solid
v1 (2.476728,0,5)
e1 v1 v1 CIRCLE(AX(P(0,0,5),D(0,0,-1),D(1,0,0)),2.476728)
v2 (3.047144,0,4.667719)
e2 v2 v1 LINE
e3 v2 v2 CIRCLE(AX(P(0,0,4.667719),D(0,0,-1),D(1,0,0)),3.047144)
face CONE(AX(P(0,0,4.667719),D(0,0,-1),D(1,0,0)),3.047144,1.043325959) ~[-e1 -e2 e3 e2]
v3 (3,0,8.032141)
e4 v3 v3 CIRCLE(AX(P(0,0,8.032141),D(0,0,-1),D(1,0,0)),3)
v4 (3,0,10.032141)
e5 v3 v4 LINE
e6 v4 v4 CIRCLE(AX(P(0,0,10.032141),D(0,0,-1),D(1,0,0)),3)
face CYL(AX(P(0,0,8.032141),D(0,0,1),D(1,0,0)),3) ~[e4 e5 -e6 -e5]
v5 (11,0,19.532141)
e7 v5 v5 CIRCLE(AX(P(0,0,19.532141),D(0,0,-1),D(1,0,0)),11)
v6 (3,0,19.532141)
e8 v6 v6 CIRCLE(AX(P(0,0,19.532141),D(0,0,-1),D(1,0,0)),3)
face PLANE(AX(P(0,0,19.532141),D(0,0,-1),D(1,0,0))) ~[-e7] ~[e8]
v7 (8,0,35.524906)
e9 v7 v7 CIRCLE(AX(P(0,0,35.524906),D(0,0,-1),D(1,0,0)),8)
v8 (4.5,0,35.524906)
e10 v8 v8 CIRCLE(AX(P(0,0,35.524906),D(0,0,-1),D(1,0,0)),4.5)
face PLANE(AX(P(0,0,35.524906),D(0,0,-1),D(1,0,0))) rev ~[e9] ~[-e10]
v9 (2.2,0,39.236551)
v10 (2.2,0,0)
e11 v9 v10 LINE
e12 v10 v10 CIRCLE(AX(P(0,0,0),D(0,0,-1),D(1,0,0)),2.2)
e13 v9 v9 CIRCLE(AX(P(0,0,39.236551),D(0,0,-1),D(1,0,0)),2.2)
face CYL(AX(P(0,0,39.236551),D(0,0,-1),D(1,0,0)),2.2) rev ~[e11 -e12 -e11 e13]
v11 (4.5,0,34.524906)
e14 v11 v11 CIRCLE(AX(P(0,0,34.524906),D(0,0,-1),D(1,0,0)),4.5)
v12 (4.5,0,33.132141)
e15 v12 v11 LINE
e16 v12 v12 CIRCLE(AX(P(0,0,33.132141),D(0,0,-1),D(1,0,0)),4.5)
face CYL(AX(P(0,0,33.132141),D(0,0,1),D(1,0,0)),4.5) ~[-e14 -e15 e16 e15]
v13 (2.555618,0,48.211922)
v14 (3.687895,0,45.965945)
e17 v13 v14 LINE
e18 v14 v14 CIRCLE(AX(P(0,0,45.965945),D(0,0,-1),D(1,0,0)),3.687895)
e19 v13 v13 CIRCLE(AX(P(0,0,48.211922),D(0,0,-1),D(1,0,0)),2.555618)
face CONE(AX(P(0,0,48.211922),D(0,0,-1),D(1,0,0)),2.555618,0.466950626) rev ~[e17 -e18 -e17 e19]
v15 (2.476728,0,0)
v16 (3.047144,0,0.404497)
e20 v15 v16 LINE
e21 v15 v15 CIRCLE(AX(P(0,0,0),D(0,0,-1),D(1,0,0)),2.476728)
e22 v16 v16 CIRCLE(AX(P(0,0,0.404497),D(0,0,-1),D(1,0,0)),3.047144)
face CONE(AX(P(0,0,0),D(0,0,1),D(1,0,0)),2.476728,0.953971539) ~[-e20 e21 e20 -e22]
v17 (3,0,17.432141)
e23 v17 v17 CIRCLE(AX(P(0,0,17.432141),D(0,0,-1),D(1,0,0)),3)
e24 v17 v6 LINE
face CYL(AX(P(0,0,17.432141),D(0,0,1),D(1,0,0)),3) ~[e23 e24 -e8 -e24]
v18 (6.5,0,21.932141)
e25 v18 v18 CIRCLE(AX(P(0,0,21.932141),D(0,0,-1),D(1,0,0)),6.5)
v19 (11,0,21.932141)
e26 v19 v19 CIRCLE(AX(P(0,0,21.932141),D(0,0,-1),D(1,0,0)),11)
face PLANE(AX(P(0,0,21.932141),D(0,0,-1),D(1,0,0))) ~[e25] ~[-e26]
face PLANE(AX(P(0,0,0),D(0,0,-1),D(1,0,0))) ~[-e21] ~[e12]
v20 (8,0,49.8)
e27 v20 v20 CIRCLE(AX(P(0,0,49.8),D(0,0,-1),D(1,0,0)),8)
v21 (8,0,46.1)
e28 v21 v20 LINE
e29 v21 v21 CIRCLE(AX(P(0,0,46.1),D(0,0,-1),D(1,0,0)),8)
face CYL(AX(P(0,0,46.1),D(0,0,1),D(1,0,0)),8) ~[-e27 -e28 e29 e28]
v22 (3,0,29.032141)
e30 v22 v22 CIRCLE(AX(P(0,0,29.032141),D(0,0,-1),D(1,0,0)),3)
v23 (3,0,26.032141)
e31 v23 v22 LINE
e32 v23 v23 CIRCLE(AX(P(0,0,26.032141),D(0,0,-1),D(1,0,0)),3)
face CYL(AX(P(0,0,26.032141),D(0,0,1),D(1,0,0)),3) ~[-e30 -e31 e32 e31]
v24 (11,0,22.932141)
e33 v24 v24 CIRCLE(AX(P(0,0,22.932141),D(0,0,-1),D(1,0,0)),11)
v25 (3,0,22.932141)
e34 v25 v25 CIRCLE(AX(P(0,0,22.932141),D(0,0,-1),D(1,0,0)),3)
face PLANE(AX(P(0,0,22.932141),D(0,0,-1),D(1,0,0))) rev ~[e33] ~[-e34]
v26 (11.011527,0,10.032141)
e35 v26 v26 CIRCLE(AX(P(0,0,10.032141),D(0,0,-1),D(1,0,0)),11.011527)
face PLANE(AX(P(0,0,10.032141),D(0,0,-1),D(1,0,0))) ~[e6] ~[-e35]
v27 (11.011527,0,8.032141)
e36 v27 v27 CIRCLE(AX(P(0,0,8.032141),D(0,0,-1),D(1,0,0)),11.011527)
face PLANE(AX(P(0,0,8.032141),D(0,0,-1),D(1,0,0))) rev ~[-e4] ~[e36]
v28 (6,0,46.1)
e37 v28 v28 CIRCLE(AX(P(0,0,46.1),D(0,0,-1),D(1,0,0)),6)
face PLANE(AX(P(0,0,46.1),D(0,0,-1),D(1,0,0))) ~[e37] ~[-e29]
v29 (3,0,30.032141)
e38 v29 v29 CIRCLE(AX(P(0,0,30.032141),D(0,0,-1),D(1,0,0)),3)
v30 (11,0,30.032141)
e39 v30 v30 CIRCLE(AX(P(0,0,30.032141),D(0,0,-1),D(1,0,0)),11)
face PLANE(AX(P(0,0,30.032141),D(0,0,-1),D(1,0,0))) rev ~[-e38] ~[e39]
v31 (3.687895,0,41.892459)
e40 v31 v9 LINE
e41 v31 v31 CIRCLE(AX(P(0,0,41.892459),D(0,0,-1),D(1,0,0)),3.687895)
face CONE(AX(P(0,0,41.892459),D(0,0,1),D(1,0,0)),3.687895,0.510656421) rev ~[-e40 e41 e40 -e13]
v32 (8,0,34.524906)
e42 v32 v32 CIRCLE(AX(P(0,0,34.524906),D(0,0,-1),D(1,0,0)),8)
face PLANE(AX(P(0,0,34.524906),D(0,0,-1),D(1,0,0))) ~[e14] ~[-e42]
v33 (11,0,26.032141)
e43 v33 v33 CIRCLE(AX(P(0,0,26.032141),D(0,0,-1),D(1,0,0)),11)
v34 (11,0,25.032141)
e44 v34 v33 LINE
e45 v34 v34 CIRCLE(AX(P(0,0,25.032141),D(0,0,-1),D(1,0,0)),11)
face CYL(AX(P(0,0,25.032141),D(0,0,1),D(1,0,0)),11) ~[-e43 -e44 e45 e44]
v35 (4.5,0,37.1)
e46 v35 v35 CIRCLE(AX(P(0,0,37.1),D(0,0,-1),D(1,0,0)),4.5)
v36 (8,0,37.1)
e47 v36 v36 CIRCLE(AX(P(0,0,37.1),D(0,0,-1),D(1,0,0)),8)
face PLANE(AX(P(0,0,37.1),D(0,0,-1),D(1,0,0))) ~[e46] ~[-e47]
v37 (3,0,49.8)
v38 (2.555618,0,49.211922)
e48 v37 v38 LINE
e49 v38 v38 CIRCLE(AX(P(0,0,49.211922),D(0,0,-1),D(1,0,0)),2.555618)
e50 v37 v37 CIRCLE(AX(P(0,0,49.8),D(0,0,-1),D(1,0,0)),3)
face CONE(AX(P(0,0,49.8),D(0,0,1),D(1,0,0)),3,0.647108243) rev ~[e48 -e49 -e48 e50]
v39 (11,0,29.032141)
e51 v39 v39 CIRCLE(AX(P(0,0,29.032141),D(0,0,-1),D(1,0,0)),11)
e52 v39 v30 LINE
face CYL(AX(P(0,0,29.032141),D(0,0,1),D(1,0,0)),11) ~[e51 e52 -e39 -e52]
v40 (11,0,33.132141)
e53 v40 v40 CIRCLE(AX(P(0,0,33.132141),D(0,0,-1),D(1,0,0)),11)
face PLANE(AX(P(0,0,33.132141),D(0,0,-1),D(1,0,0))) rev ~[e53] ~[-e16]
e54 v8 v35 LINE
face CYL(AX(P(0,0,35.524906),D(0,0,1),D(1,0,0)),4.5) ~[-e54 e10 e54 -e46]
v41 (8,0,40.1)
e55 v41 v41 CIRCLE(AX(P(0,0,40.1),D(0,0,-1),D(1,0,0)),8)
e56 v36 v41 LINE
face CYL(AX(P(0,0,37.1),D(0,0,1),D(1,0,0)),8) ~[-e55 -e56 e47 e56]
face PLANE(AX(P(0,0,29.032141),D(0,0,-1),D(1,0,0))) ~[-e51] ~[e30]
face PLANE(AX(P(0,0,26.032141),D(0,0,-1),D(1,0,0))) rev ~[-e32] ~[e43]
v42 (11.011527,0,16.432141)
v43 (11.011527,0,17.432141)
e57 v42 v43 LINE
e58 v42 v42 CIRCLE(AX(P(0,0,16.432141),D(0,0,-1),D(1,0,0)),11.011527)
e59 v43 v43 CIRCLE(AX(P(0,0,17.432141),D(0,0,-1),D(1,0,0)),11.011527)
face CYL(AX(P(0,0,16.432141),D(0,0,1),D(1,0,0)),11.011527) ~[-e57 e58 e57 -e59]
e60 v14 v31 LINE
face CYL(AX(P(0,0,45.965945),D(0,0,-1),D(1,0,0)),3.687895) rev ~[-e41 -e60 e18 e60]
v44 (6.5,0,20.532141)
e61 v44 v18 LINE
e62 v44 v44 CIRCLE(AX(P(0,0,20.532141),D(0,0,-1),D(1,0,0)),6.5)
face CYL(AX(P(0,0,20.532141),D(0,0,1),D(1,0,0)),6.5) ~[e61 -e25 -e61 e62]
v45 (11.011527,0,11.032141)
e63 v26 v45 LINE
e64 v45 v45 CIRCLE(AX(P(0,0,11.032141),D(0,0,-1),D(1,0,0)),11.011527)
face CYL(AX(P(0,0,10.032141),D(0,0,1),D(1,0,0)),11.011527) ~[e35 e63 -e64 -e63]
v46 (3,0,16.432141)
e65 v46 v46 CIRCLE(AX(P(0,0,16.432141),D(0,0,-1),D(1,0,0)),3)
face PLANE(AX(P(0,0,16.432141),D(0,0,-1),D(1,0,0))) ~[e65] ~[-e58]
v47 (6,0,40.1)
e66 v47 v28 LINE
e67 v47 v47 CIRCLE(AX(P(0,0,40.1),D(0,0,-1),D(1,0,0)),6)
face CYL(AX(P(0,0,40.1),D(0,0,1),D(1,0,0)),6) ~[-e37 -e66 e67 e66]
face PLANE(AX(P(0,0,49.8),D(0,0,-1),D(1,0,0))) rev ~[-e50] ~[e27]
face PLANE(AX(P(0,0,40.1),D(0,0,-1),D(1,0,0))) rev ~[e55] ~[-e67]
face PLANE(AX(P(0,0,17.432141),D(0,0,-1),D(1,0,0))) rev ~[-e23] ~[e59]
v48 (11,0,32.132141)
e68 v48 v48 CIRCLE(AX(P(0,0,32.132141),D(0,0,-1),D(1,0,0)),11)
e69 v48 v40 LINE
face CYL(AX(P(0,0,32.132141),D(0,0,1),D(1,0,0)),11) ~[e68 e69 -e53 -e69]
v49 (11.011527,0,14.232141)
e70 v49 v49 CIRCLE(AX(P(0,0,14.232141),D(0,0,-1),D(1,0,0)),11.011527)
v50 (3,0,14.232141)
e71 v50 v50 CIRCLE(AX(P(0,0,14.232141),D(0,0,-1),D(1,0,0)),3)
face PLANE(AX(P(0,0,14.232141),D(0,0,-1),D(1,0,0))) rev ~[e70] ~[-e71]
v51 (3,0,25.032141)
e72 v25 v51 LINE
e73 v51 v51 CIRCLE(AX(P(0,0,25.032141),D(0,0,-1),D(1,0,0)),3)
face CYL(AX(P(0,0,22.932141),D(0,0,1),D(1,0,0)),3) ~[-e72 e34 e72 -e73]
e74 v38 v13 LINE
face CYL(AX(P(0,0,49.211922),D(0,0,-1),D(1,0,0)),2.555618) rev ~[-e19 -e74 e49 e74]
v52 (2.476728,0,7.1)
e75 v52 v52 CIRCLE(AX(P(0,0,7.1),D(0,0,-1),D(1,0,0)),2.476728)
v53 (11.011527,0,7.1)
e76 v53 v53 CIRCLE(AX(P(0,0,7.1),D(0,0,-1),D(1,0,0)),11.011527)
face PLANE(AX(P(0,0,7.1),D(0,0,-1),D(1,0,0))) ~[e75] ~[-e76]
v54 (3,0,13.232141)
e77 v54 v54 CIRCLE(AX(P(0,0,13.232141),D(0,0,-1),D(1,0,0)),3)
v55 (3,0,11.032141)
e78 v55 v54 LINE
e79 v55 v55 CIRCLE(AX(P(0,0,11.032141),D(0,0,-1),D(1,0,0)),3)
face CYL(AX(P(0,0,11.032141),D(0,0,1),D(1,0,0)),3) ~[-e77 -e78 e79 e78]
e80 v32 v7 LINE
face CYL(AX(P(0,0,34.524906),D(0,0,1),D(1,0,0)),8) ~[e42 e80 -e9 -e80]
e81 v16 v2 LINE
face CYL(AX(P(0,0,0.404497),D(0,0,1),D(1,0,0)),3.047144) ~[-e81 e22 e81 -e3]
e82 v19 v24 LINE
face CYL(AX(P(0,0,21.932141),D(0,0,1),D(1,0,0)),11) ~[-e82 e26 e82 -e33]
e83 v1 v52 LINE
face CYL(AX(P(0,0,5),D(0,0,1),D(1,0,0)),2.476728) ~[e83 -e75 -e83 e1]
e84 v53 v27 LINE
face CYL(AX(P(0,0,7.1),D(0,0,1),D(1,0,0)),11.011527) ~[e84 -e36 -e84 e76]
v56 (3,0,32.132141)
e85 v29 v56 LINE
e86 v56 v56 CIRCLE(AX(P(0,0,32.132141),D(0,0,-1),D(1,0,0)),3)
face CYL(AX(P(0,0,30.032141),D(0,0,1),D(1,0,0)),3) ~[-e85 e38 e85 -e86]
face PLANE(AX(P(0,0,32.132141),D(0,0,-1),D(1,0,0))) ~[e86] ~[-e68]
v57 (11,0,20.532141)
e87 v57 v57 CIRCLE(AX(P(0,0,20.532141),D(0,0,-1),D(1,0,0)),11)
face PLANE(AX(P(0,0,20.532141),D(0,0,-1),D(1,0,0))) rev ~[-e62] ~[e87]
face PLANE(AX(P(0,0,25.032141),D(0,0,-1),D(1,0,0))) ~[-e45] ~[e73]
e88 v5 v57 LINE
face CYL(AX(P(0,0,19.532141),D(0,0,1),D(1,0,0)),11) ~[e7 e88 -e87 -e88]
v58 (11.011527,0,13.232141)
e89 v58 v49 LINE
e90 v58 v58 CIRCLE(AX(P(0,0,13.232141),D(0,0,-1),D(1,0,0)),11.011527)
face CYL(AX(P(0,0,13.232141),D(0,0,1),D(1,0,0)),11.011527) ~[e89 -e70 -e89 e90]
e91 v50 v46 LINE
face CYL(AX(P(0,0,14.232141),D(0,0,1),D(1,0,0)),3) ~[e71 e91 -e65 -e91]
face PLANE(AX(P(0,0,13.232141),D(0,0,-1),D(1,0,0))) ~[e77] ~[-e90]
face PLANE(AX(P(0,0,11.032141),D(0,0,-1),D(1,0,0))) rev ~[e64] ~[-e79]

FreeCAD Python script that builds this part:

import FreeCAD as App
import Part
import Sketcher

V = App.Vector
Q = App.Units.Quantity


def add_polygon(sketch, points):
    """Adds a closed chain of lines whose ends are joined by coincident constraints."""
    first, n = sketch.GeometryCount, len(points)
    for a, b in zip(points, points[1:] + points[:1]):
        sketch.addGeometry(Part.LineSegment(App.Vector(*a, 0), App.Vector(*b, 0)), False)
    for i in range(n):
        sketch.addConstraint(Sketcher.Constraint("Coincident", first + i, 2, first + (i + 1) % n, 1))

doc = App.newDocument("Part")
body = doc.addObject("PartDesign::Body", "Body")

sketch1 = body.newObject("Sketcher::SketchObject", "Sketch")
sketch1.AttachmentSupport = (doc.getObject("XZ_Plane"), [""])
sketch1.MapMode = "FlatFace"
add_polygon(sketch1, [(8, 49.8), (3, 49.8), (2.56, 49.21), (2.56, 48.21), (3.69, 45.97), (3.69, 41.89), (2.2, 39.24), (2.2, 0), (2.48, 0), (3.05, 0.4), (3.05, 4.67), (2.48, 5), (2.48, 7.1), (11.01, 7.1), (11.01, 8.03), (3, 8.03), (3, 10.03), (11.01, 10.03), (11.01, 11.03), (3, 11.03), (3, 13.23), (11.01, 13.23), (11.01, 14.23), (3, 14.23), (3, 16.43), (11.01, 16.43), (11.01, 17.43), (3, 17.43), (3, 19.53), (11, 19.53), (11, 20.53), (6.5, 20.53), (6.5, 21.93), (11, 21.93), (11, 22.93), (3, 22.93), (3, 25.03), (11, 25.03), (11, 26.03), (3, 26.03), (3, 29.03), (11, 29.03), (11, 30.03), (3, 30.03), (3, 32.13), (11, 32.13), (11, 33.13), (4.5, 33.13), (4.5, 34.52), (8, 34.52), (8, 35.52), (4.5, 35.52), (4.5, 37.1), (8, 37.1), (8, 40.1), (6, 40.1), (6, 46.1), (8, 46.1)])
sketch1.addConstraint([
    Sketcher.Constraint("Horizontal", 0),
    Sketcher.Constraint("Vertical", 2),
    Sketcher.Constraint("Vertical", 4),
    Sketcher.Constraint("Vertical", 6),
    Sketcher.Constraint("Horizontal", 7),
    Sketcher.Constraint("Vertical", 9),
    Sketcher.Constraint("Vertical", 11),
    Sketcher.Constraint("Horizontal", 12),
    Sketcher.Constraint("Vertical", 13),
    Sketcher.Constraint("Horizontal", 14),
    Sketcher.Constraint("Vertical", 15),
    Sketcher.Constraint("Horizontal", 16),
    Sketcher.Constraint("Vertical", 17),
    Sketcher.Constraint("Horizontal", 18),
    Sketcher.Constraint("Vertical", 19),
    Sketcher.Constraint("Horizontal", 20),
    Sketcher.Constraint("Vertical", 21),
    Sketcher.Constraint("Horizontal", 22),
    Sketcher.Constraint("Vertical", 23),
    Sketcher.Constraint("Horizontal", 24),
    Sketcher.Constraint("Vertical", 25),
    Sketcher.Constraint("Horizontal", 26),
    Sketcher.Constraint("Vertical", 27),
    Sketcher.Constraint("Horizontal", 28),
    Sketcher.Constraint("Vertical", 29),
    Sketcher.Constraint("Horizontal", 30),
    Sketcher.Constraint("Vertical", 31),
    Sketcher.Constraint("Horizontal", 32),
    Sketcher.Constraint("Vertical", 33),
    Sketcher.Constraint("Horizontal", 34),
    Sketcher.Constraint("Vertical", 35),
    Sketcher.Constraint("Horizontal", 36),
    Sketcher.Constraint("Vertical", 37),
    Sketcher.Constraint("Horizontal", 38),
    Sketcher.Constraint("Vertical", 39),
    Sketcher.Constraint("Horizontal", 40),
    Sketcher.Constraint("Vertical", 41),
    Sketcher.Constraint("Horizontal", 42),
    Sketcher.Constraint("Vertical", 43),
    Sketcher.Constraint("Horizontal", 44),
    Sketcher.Constraint("Vertical", 45),
    Sketcher.Constraint("Horizontal", 46),
    Sketcher.Constraint("Vertical", 47),
    Sketcher.Constraint("Horizontal", 48),
    Sketcher.Constraint("Vertical", 49),
    Sketcher.Constraint("Horizontal", 50),
    Sketcher.Constraint("Vertical", 51),
    Sketcher.Constraint("Horizontal", 52),
    Sketcher.Constraint("Vertical", 53),
    Sketcher.Constraint("Horizontal", 54),
    Sketcher.Constraint("Vertical", 55),
    Sketcher.Constraint("Horizontal", 56),
    Sketcher.Constraint("Vertical", 57),
    Sketcher.Constraint("PointOnObject", 6, 2, -1),
    Sketcher.Constraint("Vertical", 7, 2, 10, 2),
    Sketcher.Constraint("Vertical", 0, 2, 14, 2),
    Sketcher.Constraint("Vertical", 13, 2, 16, 2),
    Sketcher.Constraint("Vertical", 15, 2, 18, 2),
    Sketcher.Constraint("Vertical", 17, 2, 20, 2),
    Sketcher.Constraint("Vertical", 19, 2, 22, 2),
    Sketcher.Constraint("Vertical", 21, 2, 24, 2),
    Sketcher.Constraint("Vertical", 23, 2, 26, 2),
    Sketcher.Constraint("Vertical", 29, 2, 32, 2),
    Sketcher.Constraint("Vertical", 27, 2, 34, 2),
    Sketcher.Constraint("Vertical", 33, 2, 36, 2),
    Sketcher.Constraint("Vertical", 35, 2, 38, 2),
    Sketcher.Constraint("Vertical", 37, 2, 40, 2),
    Sketcher.Constraint("Vertical", 39, 2, 42, 2),
    Sketcher.Constraint("Vertical", 41, 2, 44, 2),
    Sketcher.Constraint("Vertical", 47, 2, 50, 2),
    Sketcher.Constraint("Vertical", 49, 2, 52, 2),
    Sketcher.Constraint("Vertical", 53, 2, 56, 2),
    Sketcher.Constraint("Equal", 56, 15),
    Sketcher.Constraint("Equal", 2, 17),
    Sketcher.Constraint("Equal", 17, 21),
    Sketcher.Constraint("Equal", 19, 23),
    Sketcher.Constraint("Equal", 21, 25),
    Sketcher.Constraint("Equal", 11, 27),
    Sketcher.Constraint("Equal", 25, 29),
    Sketcher.Constraint("Equal", 29, 33),
    Sketcher.Constraint("Equal", 27, 35),
    Sketcher.Constraint("Equal", 33, 37),
    Sketcher.Constraint("Equal", 37, 41),
    Sketcher.Constraint("Equal", 35, 43),
    Sketcher.Constraint("Equal", 41, 45),
    Sketcher.Constraint("Equal", 45, 49),
    Sketcher.Constraint("Equal", 39, 53),
    Sketcher.Constraint("DistanceX", 0, 2, 0, 1, Q("5 mm")),
    Sketcher.Constraint("DistanceX", 28, 1, 28, 2, Q("8 mm")),
    Sketcher.Constraint("DistanceX", 54, 2, 54, 1, Q("2 mm")),
    Sketcher.Constraint("DistanceY", 2, 2, 2, 1, Q("1 mm")),
    Sketcher.Constraint("DistanceY", 39, 1, 39, 2, Q("3 mm")),
    Sketcher.Constraint("DistanceY", 55, 1, 55, 2, Q("6 mm")),
    Sketcher.Constraint("DistanceX", 30, 2, 30, 1, Q("4.5 mm")),
    Sketcher.Constraint("DistanceX", 46, 2, 46, 1, Q("6.5 mm")),
    Sketcher.Constraint("DistanceY", 11, 1, 11, 2, Q("2.1 mm")),
    Sketcher.Constraint("DistanceY", 19, 1, 19, 2, Q("2.2 mm")),
    Sketcher.Constraint("DistanceY", 31, 1, 31, 2, Q("1.4 mm")),
    Sketcher.Constraint("DistanceY", 57, 1, 57, 2, Q("3.7 mm")),
    Sketcher.Constraint("DistanceX", -1, 1, 0, 2, Q("3 mm")),
    Sketcher.Constraint("DistanceY", -1, 1, 10, 2, Q("5 mm")),
    Sketcher.Constraint("DistanceY", -1, 1, 0, 2, Q("49.8 mm")),
    Sketcher.Constraint("DistanceX", -1, 1, 5, 2, Q("2.2 mm")),
    Sketcher.Constraint("DistanceX", 12, 1, 12, 2, Q("8.534799 mm")),
    Sketcher.Constraint("DistanceY", 6, 2, 6, 1, Q("39.236551 mm")),
    Sketcher.Constraint("DistanceY", 13, 1, 13, 2, Q("0.932141 mm")),
    Sketcher.Constraint("Distance", 8, Q("0.69928 mm")),
    Sketcher.Constraint("Distance", 10, Q("0.66014 mm")),
    Sketcher.Constraint("DistanceX", 7, 1, 7, 2, Q("0.276728 mm")),
    Sketcher.Constraint("DistanceY", 4, 2, 4, 1, Q("4.073486 mm")),
    Sketcher.Constraint("DistanceY", 9, 1, 9, 2, Q("4.263222 mm")),
    Sketcher.Constraint("DistanceY", 47, 1, 47, 2, Q("1.392765 mm")),
    Sketcher.Constraint("DistanceX", -1, 1, 1, 2, Q("2.555618 mm")),
    Sketcher.Constraint("DistanceY", -1, 1, 4, 2, Q("41.892459 mm")),
    Sketcher.Constraint("DistanceY", 5, 2, 2, 2, Q("8.975371 mm")),
    Sketcher.Constraint("DistanceX", 8, 2, 4, 2, Q("0.640751 mm")),
])
revolution = body.newObject("PartDesign::Revolution", "Revolution")
revolution.Profile = sketch1
revolution.ReferenceAxis = (sketch1, ["V_Axis"])
revolution.Angle = 360

doc.recompute()
